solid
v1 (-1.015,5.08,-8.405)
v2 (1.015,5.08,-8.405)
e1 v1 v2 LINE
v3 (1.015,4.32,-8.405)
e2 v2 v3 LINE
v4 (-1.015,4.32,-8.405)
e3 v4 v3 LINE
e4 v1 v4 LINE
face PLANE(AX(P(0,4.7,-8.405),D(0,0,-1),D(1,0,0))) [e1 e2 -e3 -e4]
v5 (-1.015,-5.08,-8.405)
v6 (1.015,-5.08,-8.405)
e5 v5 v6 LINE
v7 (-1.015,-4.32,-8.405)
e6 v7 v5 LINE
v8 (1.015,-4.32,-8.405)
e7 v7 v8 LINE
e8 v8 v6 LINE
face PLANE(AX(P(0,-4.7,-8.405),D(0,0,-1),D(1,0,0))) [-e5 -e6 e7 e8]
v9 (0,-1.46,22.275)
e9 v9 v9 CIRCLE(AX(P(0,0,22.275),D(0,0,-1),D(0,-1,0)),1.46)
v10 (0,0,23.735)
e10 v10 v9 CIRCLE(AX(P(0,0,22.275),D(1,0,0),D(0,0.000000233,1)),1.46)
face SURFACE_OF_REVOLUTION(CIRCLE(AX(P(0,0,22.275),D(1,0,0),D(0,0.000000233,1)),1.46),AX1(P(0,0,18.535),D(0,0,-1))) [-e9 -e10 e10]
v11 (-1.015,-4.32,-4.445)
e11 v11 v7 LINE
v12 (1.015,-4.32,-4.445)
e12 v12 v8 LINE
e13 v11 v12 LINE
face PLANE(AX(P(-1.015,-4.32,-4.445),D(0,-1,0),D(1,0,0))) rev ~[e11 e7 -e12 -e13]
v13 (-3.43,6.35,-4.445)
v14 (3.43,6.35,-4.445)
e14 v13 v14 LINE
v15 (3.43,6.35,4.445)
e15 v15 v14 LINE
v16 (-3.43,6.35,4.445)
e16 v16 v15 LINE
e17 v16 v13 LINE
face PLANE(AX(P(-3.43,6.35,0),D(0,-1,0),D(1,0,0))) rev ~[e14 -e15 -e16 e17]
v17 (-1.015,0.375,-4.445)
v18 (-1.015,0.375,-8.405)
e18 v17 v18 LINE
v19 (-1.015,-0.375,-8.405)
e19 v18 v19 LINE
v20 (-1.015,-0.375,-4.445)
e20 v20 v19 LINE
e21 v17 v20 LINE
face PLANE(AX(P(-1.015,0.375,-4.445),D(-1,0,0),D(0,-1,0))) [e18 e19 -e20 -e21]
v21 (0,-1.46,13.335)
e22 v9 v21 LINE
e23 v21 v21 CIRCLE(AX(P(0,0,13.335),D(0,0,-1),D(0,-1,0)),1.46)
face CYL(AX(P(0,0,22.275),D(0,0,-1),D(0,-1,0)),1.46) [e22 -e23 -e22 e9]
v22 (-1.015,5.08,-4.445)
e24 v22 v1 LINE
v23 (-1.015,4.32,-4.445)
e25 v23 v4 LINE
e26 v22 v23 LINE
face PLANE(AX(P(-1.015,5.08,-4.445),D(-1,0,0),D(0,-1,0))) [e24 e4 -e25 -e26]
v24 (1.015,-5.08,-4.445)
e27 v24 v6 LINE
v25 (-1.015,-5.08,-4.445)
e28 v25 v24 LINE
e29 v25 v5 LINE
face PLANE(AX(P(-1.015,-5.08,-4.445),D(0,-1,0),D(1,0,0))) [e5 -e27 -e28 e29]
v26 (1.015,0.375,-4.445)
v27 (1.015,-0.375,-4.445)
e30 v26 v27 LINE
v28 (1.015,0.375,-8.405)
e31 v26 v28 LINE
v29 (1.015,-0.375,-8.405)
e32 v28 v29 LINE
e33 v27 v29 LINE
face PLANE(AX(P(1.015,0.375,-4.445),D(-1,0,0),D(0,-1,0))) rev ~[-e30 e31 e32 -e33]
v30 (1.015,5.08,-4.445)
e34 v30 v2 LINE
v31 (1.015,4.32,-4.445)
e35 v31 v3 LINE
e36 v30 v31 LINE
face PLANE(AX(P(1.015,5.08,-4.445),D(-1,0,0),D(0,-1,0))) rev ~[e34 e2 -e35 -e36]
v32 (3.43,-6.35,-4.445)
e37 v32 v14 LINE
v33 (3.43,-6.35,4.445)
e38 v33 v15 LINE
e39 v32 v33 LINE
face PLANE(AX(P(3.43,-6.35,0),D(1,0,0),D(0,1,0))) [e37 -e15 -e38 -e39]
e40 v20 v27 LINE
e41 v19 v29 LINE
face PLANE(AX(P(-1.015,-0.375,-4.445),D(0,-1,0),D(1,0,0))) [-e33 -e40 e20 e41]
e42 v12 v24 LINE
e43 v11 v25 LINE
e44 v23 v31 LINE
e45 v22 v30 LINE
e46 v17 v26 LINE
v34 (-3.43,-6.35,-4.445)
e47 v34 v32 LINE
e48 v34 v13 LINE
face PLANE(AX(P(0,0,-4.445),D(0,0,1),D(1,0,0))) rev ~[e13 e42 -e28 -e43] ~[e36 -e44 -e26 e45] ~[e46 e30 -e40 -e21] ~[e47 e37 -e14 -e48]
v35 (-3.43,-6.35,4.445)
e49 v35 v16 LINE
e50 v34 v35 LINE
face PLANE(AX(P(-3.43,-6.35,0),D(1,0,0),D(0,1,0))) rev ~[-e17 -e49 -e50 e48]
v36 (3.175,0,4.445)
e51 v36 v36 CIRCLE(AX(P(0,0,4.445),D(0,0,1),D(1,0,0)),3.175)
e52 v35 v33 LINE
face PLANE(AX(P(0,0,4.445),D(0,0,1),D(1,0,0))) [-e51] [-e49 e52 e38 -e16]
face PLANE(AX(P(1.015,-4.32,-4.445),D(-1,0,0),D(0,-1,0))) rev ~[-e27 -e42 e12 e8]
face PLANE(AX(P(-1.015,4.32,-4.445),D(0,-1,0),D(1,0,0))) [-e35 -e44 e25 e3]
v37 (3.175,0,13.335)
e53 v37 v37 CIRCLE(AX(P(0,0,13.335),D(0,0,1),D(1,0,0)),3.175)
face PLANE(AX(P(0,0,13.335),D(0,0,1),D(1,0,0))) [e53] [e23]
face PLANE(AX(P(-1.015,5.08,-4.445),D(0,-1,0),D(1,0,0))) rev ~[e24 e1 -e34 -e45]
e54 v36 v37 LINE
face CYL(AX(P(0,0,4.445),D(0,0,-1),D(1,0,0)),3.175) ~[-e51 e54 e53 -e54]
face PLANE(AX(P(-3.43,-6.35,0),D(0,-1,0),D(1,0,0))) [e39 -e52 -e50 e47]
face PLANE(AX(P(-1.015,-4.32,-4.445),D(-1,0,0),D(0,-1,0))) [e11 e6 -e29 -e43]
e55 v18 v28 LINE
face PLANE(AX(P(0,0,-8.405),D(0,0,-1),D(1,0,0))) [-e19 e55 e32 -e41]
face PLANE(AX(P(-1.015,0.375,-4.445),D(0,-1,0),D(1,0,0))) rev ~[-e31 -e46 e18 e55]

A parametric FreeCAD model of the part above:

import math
import FreeCAD as App
import Part
import Sketcher
Q = App.Units.Quantity

doc = App.newDocument("Part")
body = doc.addObject("PartDesign::Body", "Body")

sketch1 = body.newObject("Sketcher::SketchObject", "Sketch")
sketch1.AttachmentSupport = (doc.getObject("XY_Plane"), [""])
sketch1.MapMode = "FlatFace"
sketch1.addGeometry([
    Part.LineSegment(App.Vector(-3, 6, 0), App.Vector(-3, -6, 0)),
    Part.LineSegment(App.Vector(-3, -6, 0), App.Vector(3, -6, 0)),
    Part.LineSegment(App.Vector(3, -6, 0), App.Vector(3, 6, 0)),
    Part.LineSegment(App.Vector(3, 6, 0), App.Vector(-3, 6, 0)),
], False)
sketch1.addConstraint([
    Sketcher.Constraint("Coincident", 0, 2, 1, 1),
    Sketcher.Constraint("Coincident", 1, 2, 2, 1),
    Sketcher.Constraint("Coincident", 2, 2, 3, 1),
    Sketcher.Constraint("Coincident", 3, 2, 0, 1),
    Sketcher.Constraint("Vertical", 0),
    Sketcher.Constraint("Horizontal", 1),
    Sketcher.Constraint("Vertical", 2),
    Sketcher.Constraint("Horizontal", 3),
    Sketcher.Constraint("Symmetric", 0, 2, 2, 2, -1, 1),
    Sketcher.Constraint("DistanceY", 0, 2, 0, 1, Q("0.5 in")),
    Sketcher.Constraint("DistanceX", 1, 1, 1, 2, 6.86),
])
pad1 = body.newObject("PartDesign::Pad", "Pad")
pad1.Profile = sketch1
pad1.Length = Q("0.35 in")
pad1.Midplane = True

sketch2 = body.newObject("Sketcher::SketchObject", "Sketch001")
sketch2.AttachmentSupport = (doc.getObject("XY_Plane"), [""])
sketch2.MapMode = "FlatFace"
sketch2.AttachmentOffset = App.Placement(App.Vector(0, 0, 0.175 * 25.4), App.Rotation())
sketch2.addGeometry(Part.Circle(App.Vector(0, 0, 0), App.Vector(0, 0, 1), 3.2), False)
sketch2.addConstraint([
    Sketcher.Constraint("Coincident", 0, 3, -1, 1),
    Sketcher.Constraint("Diameter", 0, Q("0.25 in")),
])
pad2 = body.newObject("PartDesign::Pad", "Pad001")
pad2.Profile = sketch2
pad2.Length = Q("0.35 in")

sketch3 = body.newObject("Sketcher::SketchObject", "Sketch002")
sketch3.AttachmentSupport = (doc.getObject("XY_Plane"), [""])
sketch3.MapMode = "FlatFace"
sketch3.AttachmentOffset = App.Placement(App.Vector(0, 0, -0.175 * 25.4), App.Rotation())
sketch3.addGeometry([
    Part.LineSegment(App.Vector(-1, -0.4, 0), App.Vector(-1, 0.4, 0)),
    Part.LineSegment(App.Vector(-1, 0.4, 0), App.Vector(1, 0.4, 0)),
    Part.LineSegment(App.Vector(1, 0.4, 0), App.Vector(1, -0.4, 0)),
    Part.LineSegment(App.Vector(1, -0.4, 0), App.Vector(-1, -0.4, 0)),
    Part.LineSegment(App.Vector(-1, 4.3, 0), App.Vector(-1, 5.1, 0)),
    Part.LineSegment(App.Vector(-1, 5.1, 0), App.Vector(1, 5.1, 0)),
    Part.LineSegment(App.Vector(1, 5.1, 0), App.Vector(1, 4.3, 0)),
    Part.LineSegment(App.Vector(1, 4.3, 0), App.Vector(-1, 4.3, 0)),
    Part.LineSegment(App.Vector(-1, -5.1, 0), App.Vector(-1, -4.3, 0)),
    Part.LineSegment(App.Vector(-1, -4.3, 0), App.Vector(1, -4.3, 0)),
    Part.LineSegment(App.Vector(1, -4.3, 0), App.Vector(1, -5.1, 0)),
    Part.LineSegment(App.Vector(1, -5.1, 0), App.Vector(-1, -5.1, 0)),
], False)
sketch3.addConstraint([
    Sketcher.Constraint("Coincident", 0, 2, 1, 1),
    Sketcher.Constraint("Coincident", 1, 2, 2, 1),
    Sketcher.Constraint("Coincident", 2, 2, 3, 1),
    Sketcher.Constraint("Coincident", 3, 2, 0, 1),
    Sketcher.Constraint("Coincident", 4, 2, 5, 1),
    Sketcher.Constraint("Coincident", 5, 2, 6, 1),
    Sketcher.Constraint("Coincident", 6, 2, 7, 1),
    Sketcher.Constraint("Coincident", 7, 2, 4, 1),
    Sketcher.Constraint("Coincident", 8, 2, 9, 1),
    Sketcher.Constraint("Coincident", 9, 2, 10, 1),
    Sketcher.Constraint("Coincident", 10, 2, 11, 1),
    Sketcher.Constraint("Coincident", 11, 2, 8, 1),
    Sketcher.Constraint("Vertical", 0),
    Sketcher.Constraint("Horizontal", 1),
    Sketcher.Constraint("Vertical", 2),
    Sketcher.Constraint("Horizontal", 3),
    Sketcher.Constraint("Vertical", 4),
    Sketcher.Constraint("Horizontal", 5),
    Sketcher.Constraint("Vertical", 6),
    Sketcher.Constraint("Horizontal", 7),
    Sketcher.Constraint("Vertical", 8),
    Sketcher.Constraint("Horizontal", 9),
    Sketcher.Constraint("Vertical", 10),
    Sketcher.Constraint("Horizontal", 11),
    Sketcher.Constraint("Symmetric", 0, 2, 2, 2, -1, 1),
    Sketcher.Constraint("Symmetric", 6, 2, 8, 2, -1, 1),
    Sketcher.Constraint("Symmetric", 4, 2, 10, 2, -1, 1),
    Sketcher.Constraint("Vertical", 3, 2, 4, 2),
    Sketcher.Constraint("Vertical", 2, 2, 5, 2),
    Sketcher.Constraint("DistanceY", -1, 1, 4, 2, Q("0.2 in")),
    Sketcher.Constraint("DistanceX", 1, 1, 1, 2, 2.03),
    Sketcher.Constraint("DistanceY", 0, 1, 0, 2, 0.75),
    Sketcher.Constraint("DistanceY", 4, 1, 4, 2, 0.76),
])
pad3 = body.newObject("PartDesign::Pad", "Pad002")
pad3.Profile = sketch3
pad3.Length = 3.96
pad3.Reversed = True

sketch4 = body.newObject("Sketcher::SketchObject", "Sketch003")
sketch4.AttachmentSupport = (doc.getObject("YZ_Plane"), [""])
sketch4.MapMode = "FlatFace"
sketch4.addGeometry([
    Part.LineSegment(App.Vector(-1.5, 22.3, 0), App.Vector(-1.5, 13.3, 0)),
    Part.LineSegment(App.Vector(-1.5, 13.3, 0), App.Vector(0, 13.3, 0)),
    Part.LineSegment(App.Vector(0, 13.3, 0), App.Vector(0, 23.7, 0)),
    Part.ArcOfCircle(Part.Circle(App.Vector(0, 22.3, 0), App.Vector(0, 0, 1), 1.5), math.radians(90), math.radians(180)),
], False)
sketch4.addConstraint([
    Sketcher.Constraint("Coincident", 0, 2, 1, 1),
    Sketcher.Constraint("Coincident", 1, 2, 2, 1),
    Sketcher.Constraint("Coincident", 2, 2, 3, 1),
    Sketcher.Constraint("Tangent", 3, 2, 0, 1),
    Sketcher.Constraint("Vertical", 0),
    Sketcher.Constraint("Horizontal", 1),
    Sketcher.Constraint("Vertical", 2),
    Sketcher.Constraint("PointOnObject", 3, 3, -2),
    Sketcher.Constraint("PointOnObject", 1, 2, -2),
    Sketcher.Constraint("Radius", 3, 1.46),
    Sketcher.Constraint("DistanceY", -1, 1, 0, 2, Q("0.525 in")),
    Sketcher.Constraint("DistanceY", 0, 2, 0, 1, 8.94),
])
revolution = body.newObject("PartDesign::Revolution", "Revolution")
revolution.Profile = sketch4
revolution.ReferenceAxis = (sketch4, ["V_Axis"])
revolution.Angle = 360

doc.recompute()
